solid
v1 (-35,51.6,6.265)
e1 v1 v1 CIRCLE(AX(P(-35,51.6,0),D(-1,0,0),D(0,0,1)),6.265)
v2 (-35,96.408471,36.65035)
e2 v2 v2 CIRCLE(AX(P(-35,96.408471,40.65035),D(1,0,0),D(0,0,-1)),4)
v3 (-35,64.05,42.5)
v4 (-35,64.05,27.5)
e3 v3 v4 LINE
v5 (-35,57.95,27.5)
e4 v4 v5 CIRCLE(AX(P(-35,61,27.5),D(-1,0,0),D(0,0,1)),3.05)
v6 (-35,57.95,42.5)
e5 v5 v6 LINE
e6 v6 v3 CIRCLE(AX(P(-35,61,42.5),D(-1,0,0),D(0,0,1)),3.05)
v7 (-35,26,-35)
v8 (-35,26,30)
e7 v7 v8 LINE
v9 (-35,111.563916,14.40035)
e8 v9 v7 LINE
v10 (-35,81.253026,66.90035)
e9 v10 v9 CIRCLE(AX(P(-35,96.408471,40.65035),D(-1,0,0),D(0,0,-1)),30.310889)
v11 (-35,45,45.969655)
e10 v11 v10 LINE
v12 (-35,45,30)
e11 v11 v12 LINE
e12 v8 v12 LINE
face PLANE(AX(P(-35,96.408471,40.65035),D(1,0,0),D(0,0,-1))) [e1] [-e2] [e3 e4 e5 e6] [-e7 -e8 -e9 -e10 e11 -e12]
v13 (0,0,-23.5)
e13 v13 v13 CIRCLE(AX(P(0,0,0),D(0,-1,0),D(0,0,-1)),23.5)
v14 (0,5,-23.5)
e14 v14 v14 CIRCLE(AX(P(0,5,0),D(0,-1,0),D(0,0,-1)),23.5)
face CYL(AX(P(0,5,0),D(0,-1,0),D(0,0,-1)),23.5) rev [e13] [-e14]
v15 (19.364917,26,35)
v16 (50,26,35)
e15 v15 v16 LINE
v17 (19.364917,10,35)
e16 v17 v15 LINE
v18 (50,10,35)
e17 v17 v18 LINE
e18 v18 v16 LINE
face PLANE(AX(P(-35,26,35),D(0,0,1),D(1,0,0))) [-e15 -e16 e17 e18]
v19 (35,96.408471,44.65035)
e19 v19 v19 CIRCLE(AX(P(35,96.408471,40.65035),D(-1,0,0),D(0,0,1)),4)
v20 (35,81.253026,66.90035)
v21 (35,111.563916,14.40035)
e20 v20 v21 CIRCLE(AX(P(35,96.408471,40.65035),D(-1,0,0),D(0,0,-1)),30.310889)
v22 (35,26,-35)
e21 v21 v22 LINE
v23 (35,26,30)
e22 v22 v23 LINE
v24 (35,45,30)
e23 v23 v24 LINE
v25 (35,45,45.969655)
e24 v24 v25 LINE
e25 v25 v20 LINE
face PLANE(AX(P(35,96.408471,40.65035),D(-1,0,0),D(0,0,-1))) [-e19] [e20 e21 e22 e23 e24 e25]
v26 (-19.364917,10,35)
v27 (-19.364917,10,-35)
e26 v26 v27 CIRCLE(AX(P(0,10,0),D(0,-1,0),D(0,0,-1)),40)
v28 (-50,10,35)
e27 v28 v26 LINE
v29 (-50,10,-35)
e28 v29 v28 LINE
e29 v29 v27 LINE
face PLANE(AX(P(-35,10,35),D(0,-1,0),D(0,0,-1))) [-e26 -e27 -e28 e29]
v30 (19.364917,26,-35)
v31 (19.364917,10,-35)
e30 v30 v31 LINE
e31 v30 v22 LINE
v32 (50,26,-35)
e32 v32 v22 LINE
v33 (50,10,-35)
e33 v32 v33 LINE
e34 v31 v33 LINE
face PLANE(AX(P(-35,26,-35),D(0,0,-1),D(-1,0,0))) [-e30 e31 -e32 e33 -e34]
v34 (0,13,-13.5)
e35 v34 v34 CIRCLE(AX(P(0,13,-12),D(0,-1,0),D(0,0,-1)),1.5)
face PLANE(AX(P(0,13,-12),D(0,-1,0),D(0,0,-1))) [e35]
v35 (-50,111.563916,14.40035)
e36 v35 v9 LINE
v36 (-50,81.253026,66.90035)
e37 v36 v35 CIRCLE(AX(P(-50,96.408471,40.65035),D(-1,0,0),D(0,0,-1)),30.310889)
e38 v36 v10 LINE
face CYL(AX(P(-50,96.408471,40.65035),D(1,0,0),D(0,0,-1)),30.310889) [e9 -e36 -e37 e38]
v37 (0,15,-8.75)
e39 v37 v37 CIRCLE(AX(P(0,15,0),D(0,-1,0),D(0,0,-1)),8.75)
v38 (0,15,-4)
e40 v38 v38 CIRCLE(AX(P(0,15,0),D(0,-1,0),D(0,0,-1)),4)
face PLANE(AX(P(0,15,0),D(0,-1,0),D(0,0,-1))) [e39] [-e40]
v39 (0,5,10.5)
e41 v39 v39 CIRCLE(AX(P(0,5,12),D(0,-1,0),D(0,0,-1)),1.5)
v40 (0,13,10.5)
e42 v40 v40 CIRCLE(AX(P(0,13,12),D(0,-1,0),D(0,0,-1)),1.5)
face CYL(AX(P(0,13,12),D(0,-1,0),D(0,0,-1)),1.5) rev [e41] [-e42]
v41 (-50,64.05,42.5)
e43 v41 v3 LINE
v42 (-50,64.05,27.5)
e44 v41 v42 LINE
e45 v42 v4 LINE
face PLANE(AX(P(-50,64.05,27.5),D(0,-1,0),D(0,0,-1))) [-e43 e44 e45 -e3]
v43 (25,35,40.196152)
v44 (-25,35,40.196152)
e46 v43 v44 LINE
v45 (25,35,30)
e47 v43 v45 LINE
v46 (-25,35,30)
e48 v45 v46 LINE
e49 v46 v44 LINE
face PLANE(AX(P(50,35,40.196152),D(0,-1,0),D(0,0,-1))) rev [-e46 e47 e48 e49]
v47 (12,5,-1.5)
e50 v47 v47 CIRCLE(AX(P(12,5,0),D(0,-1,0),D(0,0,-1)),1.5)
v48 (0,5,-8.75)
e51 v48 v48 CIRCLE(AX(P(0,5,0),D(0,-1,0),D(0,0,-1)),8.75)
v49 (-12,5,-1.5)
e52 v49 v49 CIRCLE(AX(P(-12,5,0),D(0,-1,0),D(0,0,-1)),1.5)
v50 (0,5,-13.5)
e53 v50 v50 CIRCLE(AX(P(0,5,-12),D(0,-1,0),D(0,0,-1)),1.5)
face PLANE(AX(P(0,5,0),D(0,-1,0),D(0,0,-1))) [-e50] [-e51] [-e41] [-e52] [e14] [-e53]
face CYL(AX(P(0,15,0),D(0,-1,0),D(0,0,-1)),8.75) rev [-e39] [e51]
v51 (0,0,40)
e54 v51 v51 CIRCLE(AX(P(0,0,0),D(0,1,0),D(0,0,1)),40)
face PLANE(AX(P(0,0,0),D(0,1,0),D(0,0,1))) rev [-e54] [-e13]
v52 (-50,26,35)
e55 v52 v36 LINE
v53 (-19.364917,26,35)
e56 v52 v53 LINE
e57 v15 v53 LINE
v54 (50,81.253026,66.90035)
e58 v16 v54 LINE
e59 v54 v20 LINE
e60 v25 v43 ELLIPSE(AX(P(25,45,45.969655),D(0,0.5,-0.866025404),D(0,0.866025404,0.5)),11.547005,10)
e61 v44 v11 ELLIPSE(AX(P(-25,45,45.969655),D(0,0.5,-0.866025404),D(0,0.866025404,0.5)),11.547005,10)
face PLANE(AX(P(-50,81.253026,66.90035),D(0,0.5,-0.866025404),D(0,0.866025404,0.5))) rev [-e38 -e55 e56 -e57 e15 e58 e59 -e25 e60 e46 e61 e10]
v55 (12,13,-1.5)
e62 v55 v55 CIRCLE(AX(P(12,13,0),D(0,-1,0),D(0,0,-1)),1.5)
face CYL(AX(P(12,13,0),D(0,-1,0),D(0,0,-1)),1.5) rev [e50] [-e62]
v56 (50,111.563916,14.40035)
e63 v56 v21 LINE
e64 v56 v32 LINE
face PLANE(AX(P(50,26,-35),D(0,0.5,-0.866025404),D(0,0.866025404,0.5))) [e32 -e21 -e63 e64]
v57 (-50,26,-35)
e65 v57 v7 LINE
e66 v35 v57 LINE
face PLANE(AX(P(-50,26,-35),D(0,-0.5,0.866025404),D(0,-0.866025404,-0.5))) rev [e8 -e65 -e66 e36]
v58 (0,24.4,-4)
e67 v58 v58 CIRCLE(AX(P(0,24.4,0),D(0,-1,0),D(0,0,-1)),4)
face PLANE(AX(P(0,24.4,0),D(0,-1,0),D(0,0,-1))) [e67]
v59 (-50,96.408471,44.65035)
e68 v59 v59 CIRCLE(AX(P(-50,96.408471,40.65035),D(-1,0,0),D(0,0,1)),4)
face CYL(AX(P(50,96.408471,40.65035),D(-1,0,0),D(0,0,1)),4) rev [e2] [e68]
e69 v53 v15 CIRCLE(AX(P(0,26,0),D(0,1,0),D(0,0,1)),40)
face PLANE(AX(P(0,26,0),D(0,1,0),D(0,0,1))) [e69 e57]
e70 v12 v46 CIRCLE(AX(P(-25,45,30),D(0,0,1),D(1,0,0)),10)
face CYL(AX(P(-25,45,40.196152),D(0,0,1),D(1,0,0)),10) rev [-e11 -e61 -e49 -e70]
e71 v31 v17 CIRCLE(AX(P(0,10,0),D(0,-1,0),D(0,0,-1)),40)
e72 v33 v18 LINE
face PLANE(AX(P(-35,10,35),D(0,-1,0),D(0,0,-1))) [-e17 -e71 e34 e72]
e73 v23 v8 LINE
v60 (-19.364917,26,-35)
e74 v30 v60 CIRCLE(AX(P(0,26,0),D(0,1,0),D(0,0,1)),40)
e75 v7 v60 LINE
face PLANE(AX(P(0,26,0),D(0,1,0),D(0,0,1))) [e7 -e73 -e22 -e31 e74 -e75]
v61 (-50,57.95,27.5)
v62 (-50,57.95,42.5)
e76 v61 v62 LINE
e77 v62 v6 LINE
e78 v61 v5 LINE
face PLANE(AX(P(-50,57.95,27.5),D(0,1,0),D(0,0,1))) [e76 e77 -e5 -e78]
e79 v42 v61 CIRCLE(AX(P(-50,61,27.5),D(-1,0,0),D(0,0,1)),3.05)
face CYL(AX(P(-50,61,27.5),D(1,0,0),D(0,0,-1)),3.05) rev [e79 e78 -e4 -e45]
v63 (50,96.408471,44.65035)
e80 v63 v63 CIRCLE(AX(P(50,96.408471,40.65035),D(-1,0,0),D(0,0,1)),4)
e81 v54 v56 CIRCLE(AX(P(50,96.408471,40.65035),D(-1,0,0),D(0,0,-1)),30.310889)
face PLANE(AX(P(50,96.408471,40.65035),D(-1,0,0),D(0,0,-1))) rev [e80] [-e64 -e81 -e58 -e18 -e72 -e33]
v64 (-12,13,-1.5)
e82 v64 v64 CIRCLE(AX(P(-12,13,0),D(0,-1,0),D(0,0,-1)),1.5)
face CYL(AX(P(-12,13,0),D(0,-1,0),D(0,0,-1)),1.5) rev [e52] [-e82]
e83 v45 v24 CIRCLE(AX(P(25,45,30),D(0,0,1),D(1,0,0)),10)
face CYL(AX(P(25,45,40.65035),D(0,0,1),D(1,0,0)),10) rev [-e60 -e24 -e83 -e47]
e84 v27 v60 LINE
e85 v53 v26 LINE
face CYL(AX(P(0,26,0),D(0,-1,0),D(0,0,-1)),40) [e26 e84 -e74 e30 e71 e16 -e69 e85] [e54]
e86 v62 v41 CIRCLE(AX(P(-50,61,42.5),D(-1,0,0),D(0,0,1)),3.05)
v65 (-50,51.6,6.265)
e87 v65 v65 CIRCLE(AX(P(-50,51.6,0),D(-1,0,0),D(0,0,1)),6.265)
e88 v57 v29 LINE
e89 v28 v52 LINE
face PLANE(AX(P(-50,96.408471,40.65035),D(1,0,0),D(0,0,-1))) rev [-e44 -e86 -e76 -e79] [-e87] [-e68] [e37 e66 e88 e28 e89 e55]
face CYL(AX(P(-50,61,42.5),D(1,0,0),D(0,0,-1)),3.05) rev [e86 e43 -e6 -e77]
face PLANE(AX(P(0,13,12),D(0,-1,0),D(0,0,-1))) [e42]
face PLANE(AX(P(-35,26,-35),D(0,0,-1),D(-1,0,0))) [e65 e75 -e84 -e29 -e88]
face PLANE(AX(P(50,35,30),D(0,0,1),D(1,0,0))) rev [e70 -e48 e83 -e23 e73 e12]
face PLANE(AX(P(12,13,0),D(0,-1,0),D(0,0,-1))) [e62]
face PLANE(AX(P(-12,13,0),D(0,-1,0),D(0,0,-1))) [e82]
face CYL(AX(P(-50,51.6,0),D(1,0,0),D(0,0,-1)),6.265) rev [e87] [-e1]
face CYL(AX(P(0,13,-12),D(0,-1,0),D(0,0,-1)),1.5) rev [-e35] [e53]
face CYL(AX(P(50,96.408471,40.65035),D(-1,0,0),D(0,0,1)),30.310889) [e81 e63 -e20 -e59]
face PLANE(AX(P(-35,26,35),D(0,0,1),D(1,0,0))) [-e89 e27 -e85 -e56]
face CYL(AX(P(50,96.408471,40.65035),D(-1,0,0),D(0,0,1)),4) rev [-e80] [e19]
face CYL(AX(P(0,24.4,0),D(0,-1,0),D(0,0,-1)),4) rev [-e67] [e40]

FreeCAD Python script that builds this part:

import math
import FreeCAD as App
import Part
import Sketcher
from FreeCAD import Vector
Q = App.Units.Quantity


def edges_at(feature, points):
    """Names of the edges that pass closest to the given points."""
    edges = feature.Shape.Edges
    near = lambda p: min(range(len(edges)), key=lambda i: edges[i].distToShape(Part.Vertex(*p))[0])
    return sorted({f"Edge{near(p) + 1}" for p in points})


def add_polygon(sketch, points):
    """Adds a closed chain of lines whose ends are joined by coincident constraints."""
    first, n = sketch.GeometryCount, len(points)
    for a, b in zip(points, points[1:] + points[:1]):
        sketch.addGeometry(Part.LineSegment(App.Vector(*a, 0), App.Vector(*b, 0)), False)
    for i in range(n):
        sketch.addConstraint(Sketcher.Constraint("Coincident", first + i, 2, first + (i + 1) % n, 1))

doc = App.newDocument("Part")
body = doc.addObject("PartDesign::Body", "Body")

# Sketch on XZ plane
sketch1 = body.newObject("Sketcher::SketchObject", "Sketch")
sketch1.AttachmentSupport = (doc.getObject("XZ_Plane"), [""])
sketch1.MapMode = "FlatFace"
sketch1.addGeometry(Part.Circle(Vector(0, 0, 0), Vector(0, 0, 1), 40), False)
sketch1.addConstraint([
    Sketcher.Constraint("Coincident", 0, 3, -1, 1),
    Sketcher.Constraint("Diameter", 0, Q("80 mm")),
])
pad1 = body.newObject("PartDesign::Pad", "Pad")
pad1.Profile = sketch1
pad1.Length = 26
pad1.Reversed = True

# Sketch on XZ plane
sketch2 = body.newObject("Sketcher::SketchObject", "Sketch001")
sketch2.AttachmentSupport = (doc.getObject("XZ_Plane"), [""])
sketch2.MapMode = "FlatFace"
sketch2.addGeometry(Part.Circle(Vector(0, 0, 0), Vector(0, 0, 1), 24), False)
sketch2.addConstraint([
    Sketcher.Constraint("Coincident", 0, 3, -1, 1),
    Sketcher.Constraint("Diameter", 0, Q("47 mm")),
])
pocket1 = body.newObject("PartDesign::Pocket", "Pocket")
pocket1.Profile = sketch2
pocket1.Length = 5

# Sketch on YZ plane
sketch3 = body.newObject("Sketcher::SketchObject", "Sketch002")
sketch3.AttachmentSupport = (doc.getObject("YZ_Plane"), [""])
sketch3.MapMode = "FlatFace"
add_polygon(sketch3, [(26, 35), (10, 35), (10, -35), (26, -35)])  # lines 0-3
sketch3.addConstraint([
    Sketcher.Constraint("Horizontal", 0),
    Sketcher.Constraint("Vertical", 1),
    Sketcher.Constraint("Horizontal", 2),
    Sketcher.Constraint("Vertical", 3),
    Sketcher.Constraint("DistanceX", 0, 2, 0, 1, Q("16 mm")),
    Sketcher.Constraint("DistanceY", 1, 2, 1, 1, Q("70 mm")),
    Sketcher.Constraint("DistanceX", -1, 1, 0, 2, Q("10 mm")),
    Sketcher.Constraint("DistanceY", -1, 1, 0, 2, Q("35 mm")),
])
pad2 = body.newObject("PartDesign::Pad", "Pad001")
pad2.Profile = sketch3
pad2.Type = "TwoLengths"
pad2.Length = 35
pad2.Length2 = 35

# Sketch on XZ plane
sketch4 = body.newObject("Sketcher::SketchObject", "Sketch003")
sketch4.AttachmentSupport = (doc.getObject("XZ_Plane"), [""])
sketch4.MapMode = "FlatFace"
sketch4.AttachmentOffset = App.Placement(Vector(0, 0, -5), App.Rotation())
sketch4.addGeometry(Part.Circle(Vector(0, 0, 0), Vector(0, 0, 1), 9), False)
sketch4.addConstraint([
    Sketcher.Constraint("Coincident", 0, 3, -1, 1),
    Sketcher.Constraint("Diameter", 0, Q("17.5 mm")),
])
pocket2 = body.newObject("PartDesign::Pocket", "Pocket001")
pocket2.Profile = sketch4
pocket2.Length = 10

# Sketch on XZ plane
sketch5 = body.newObject("Sketcher::SketchObject", "Sketch004")
sketch5.AttachmentSupport = (doc.getObject("XZ_Plane"), [""])
sketch5.MapMode = "FlatFace"
sketch5.AttachmentOffset = App.Placement(Vector(0, 0, -15), App.Rotation())
sketch5.addGeometry(Part.Circle(Vector(0, 0, 0), Vector(0, 0, 1), 4), False)
sketch5.addConstraint([
    Sketcher.Constraint("Coincident", 0, 3, -1, 1),
    Sketcher.Constraint("Diameter", 0, Q("8 mm")),
])
pocket3 = body.newObject("PartDesign::Pocket", "Pocket002")
pocket3.Profile = sketch5
pocket3.Length = 9.4

# Sketch on YZ plane
sketch6 = body.newObject("Sketcher::SketchObject", "Sketch005")
sketch6.AttachmentSupport = (doc.getObject("YZ_Plane"), [""])
sketch6.MapMode = "FlatFace"
sketch6.AttachmentOffset = App.Placement(Vector(0, 0, -35), App.Rotation())
sketch6.addGeometry([
    Part.LineSegment(Vector(26, -35, 0), Vector(10, -35, 0)),  # 0
    Part.LineSegment(Vector(10, -35, 0), Vector(10, 35, 0)),  # 1
    Part.LineSegment(Vector(10, 35, 0), Vector(26, 35, 0)),  # 2
    Part.LineSegment(Vector(26, 35, 0), Vector(81.3, 66.9, 0)),  # 3
    Part.ArcOfCircle(Part.Circle(Vector(96.4, 40.7, 0), Vector(0, 0, 1), 30.3), math.radians(-60), math.radians(120)),  # 4
    Part.LineSegment(Vector(111.6, 14.4, 0), Vector(26, -35, 0)),  # 5
    Part.Circle(Vector(51.6, 0, 0), Vector(0, 0, 1), 6.3),  # 6
    Part.LineSegment(Vector(64, 27.5, 0), Vector(64, 42.5, 0)),  # 7
    Part.ArcOfCircle(Part.Circle(Vector(61, 42.5, 0), Vector(0, 0, 1), 3), math.radians(0), math.radians(180)),  # 8
    Part.LineSegment(Vector(58, 42.5, 0), Vector(58, 27.5, 0)),  # 9
    Part.ArcOfCircle(Part.Circle(Vector(61, 27.5, 0), Vector(0, 0, 1), 3), math.radians(180), math.radians(360)),  # 10
], False)
sketch6.addConstraint([
    Sketcher.Constraint("Coincident", 0, 2, 1, 1),
    Sketcher.Constraint("Coincident", 1, 2, 2, 1),
    Sketcher.Constraint("Coincident", 2, 2, 3, 1),
    Sketcher.Constraint("Tangent", 3, 2, 4, 2),
    Sketcher.Constraint("Tangent", 4, 1, 5, 1),
    Sketcher.Constraint("Coincident", 5, 2, 0, 1),
    Sketcher.Constraint("Tangent", 7, 2, 8, 1),
    Sketcher.Constraint("Tangent", 8, 2, 9, 1),
    Sketcher.Constraint("Tangent", 9, 2, 10, 1),
    Sketcher.Constraint("Tangent", 10, 2, 7, 1),
    Sketcher.Constraint("Horizontal", 0),
    Sketcher.Constraint("Vertical", 1),
    Sketcher.Constraint("Horizontal", 2),
    Sketcher.Constraint("Vertical", 7),
    Sketcher.Constraint("Vertical", 9),
    Sketcher.Constraint("Symmetric", 2, 2, 5, 2, -1),
    Sketcher.Constraint("PointOnObject", 6, 3, -1),
    Sketcher.Constraint("Parallel", 3, 5),
    Sketcher.Constraint("Diameter", 6, Q("12.53 mm")),
    Sketcher.Constraint("DistanceX", 0, 2, 0, 1, Q("16 mm")),
    Sketcher.Constraint("DistanceY", 1, 1, 1, 2, Q("70 mm")),
    Sketcher.Constraint("DistanceY", 7, 1, 7, 2, Q("15 mm")),
    Sketcher.Constraint("Angle", 3, Q("30 deg")),
    Sketcher.Constraint("Radius", 8, Q("3.05 mm")),
    Sketcher.Constraint("DistanceX", -1, 1, 8, 3, Q("61 mm")),
    Sketcher.Constraint("DistanceX", -1, 1, 0, 2, Q("10 mm")),
    Sketcher.Constraint("DistanceX", -1, 1, 6, 3, Q("51.6 mm")),
    Sketcher.Constraint("DistanceY", -1, 1, 8, 3, Q("42.5 mm")),
    Sketcher.Constraint("Distance", 3, Q("63.800699 mm")),
])
pad3 = body.newObject("PartDesign::Pad", "Pad002")
pad3.Profile = sketch6
pad3.Length = 15
pad3.Reversed = True
doc.recompute()

mirrored = body.newObject("PartDesign::Mirrored", "Mirrored")
mirrored.Originals = [pad3]
mirrored.MirrorPlane = (doc.getObject("YZ_Plane"), [""])
body.Tip = mirrored

# Sketch on YZ plane
sketch7 = body.newObject("Sketcher::SketchObject", "Sketch006")
sketch7.AttachmentSupport = (doc.getObject("YZ_Plane"), [""])
sketch7.MapMode = "FlatFace"
sketch7.AttachmentOffset = App.Placement(Vector(0, 0, -50), App.Rotation())
sketch7.addGeometry(Part.Circle(Vector(96.4, 40.7, 0), Vector(0, 0, 1), 4), False)
sketch7.addConstraint([
    Sketcher.Constraint("Diameter", 0, Q("8 mm")),
    Sketcher.Constraint("DistanceX", -1, 1, 0, 3, Q("96.408471 mm")),
    Sketcher.Constraint("DistanceY", -1, 1, 0, 3, Q("40.65035 mm")),
])
pocket4 = body.newObject("PartDesign::Pocket", "Pocket003")
pocket4.Profile = sketch7
pocket4.Type = "ThroughAll"
pocket4.Reversed = True

# Sketch on YZ plane
sketch8 = body.newObject("Sketcher::SketchObject", "Sketch007")
sketch8.AttachmentSupport = (doc.getObject("YZ_Plane"), [""])
sketch8.MapMode = "FlatFace"
sketch8.AttachmentOffset = App.Placement(Vector(0, 0, -35), App.Rotation())
add_polygon(sketch8, [(35, 30), (35, 40), (26, 35), (26, 30)])  # lines 0-3
sketch8.addConstraint([
    Sketcher.Constraint("Vertical", 0),
    Sketcher.Constraint("Vertical", 2),
    Sketcher.Constraint("Horizontal", 3),
    Sketcher.Constraint("DistanceX", 3, 1, 3, 2, Q("9 mm")),
    Sketcher.Constraint("DistanceY", 2, 2, 2, 1, Q("5 mm")),
    Sketcher.Constraint("Angle", 1, Q("-150 deg")),
    Sketcher.Constraint("DistanceX", -1, 1, 0, 2, Q("35 mm")),
    Sketcher.Constraint("DistanceY", -1, 1, 1, 2, Q("35 mm")),
])
pad4 = body.newObject("PartDesign::Pad", "Pad003")
pad4.Profile = sketch8
pad4.Type = "UpToFirst"
doc.recompute()

fillet = body.newObject("PartDesign::Fillet", "Fillet")
fillet.Base = (pad4, edges_at(pad4, [(-35, 35, 35.098)]))
fillet.Radius = 10
doc.recompute()

fillet2 = body.newObject("PartDesign::Fillet", "Fillet001")
fillet2.Base = (fillet, edges_at(fillet, [(35, 35, 35.098)]))
fillet2.Radius = 10

# Sketch on XZ plane
sketch9 = body.newObject("Sketcher::SketchObject", "Sketch008")
sketch9.AttachmentSupport = (doc.getObject("XZ_Plane"), [""])
sketch9.MapMode = "FlatFace"
sketch9.AttachmentOffset = App.Placement(Vector(0, 0, -5), App.Rotation())
sketch9.addGeometry([
    Part.Circle(Vector(12, 0, 0), Vector(0, 0, 1), 1.5),
    Part.Circle(Vector(0, -12, 0), Vector(0, 0, 1), 1.5),
    Part.Circle(Vector(-12, 0, 0), Vector(0, 0, 1), 1.5),
    Part.Circle(Vector(0, 12, 0), Vector(0, 0, 1), 1.5),
], False)
sketch9.addConstraint([
    Sketcher.Constraint("Equal", 0, 1),
    Sketcher.Constraint("Equal", 1, 2),
    Sketcher.Constraint("Equal", 2, 3),
    Sketcher.Constraint("Symmetric", 0, 3, 2, 3, -1, 1),
    Sketcher.Constraint("Symmetric", 1, 3, 3, 3, -1, 1),
    Sketcher.Constraint("PointOnObject", 0, 3, -1),
    Sketcher.Constraint("PointOnObject", 1, 3, -2),
    Sketcher.Constraint("Diameter", 0, Q("3 mm")),
    Sketcher.Constraint("DistanceX", -1, 1, 0, 3, Q("12 mm")),
    Sketcher.Constraint("DistanceY", 1, 3, -1, 1, Q("12 mm")),
])
pocket5 = body.newObject("PartDesign::Pocket", "Pocket004")
pocket5.Profile = sketch9
pocket5.Length = 8

# Sketch on YZ plane
sketch10 = body.newObject("Sketcher::SketchObject", "Sketch009")
sketch10.AttachmentSupport = (doc.getObject("YZ_Plane"), [""])
sketch10.MapMode = "FlatFace"
sketch10.AttachmentOffset = App.Placement(Vector(0, 0, 35), App.Rotation())
sketch10.addGeometry(Part.Circle(Vector(52, 0, 0), Vector(0, 0, 1), 6), False)
sketch10.addConstraint([
    Sketcher.Constraint("PointOnObject", 0, 3, -1),
    Sketcher.Constraint("Diameter", 0, Q("12.53 mm")),
    Sketcher.Constraint("DistanceX", -1, 1, 0, 3, Q("51.6 mm")),
])
pad5 = body.newObject("PartDesign::Pad", "Pad004")
pad5.Profile = sketch10
pad5.Length = 15

# Sketch on YZ plane
sketch11 = body.newObject("Sketcher::SketchObject", "Sketch010")
sketch11.AttachmentSupport = (doc.getObject("YZ_Plane"), [""])
sketch11.MapMode = "FlatFace"
sketch11.AttachmentOffset = App.Placement(Vector(0, 0, 35), App.Rotation())
sketch11.addGeometry([
    Part.LineSegment(Vector(64, 42.5, 0), Vector(64, 27.5, 0)),
    Part.ArcOfCircle(Part.Circle(Vector(61, 27.5, 0), Vector(0, 0, 1), 3), math.radians(180), math.radians(360)),
    Part.LineSegment(Vector(58, 27.5, 0), Vector(58, 42.5, 0)),
    Part.ArcOfCircle(Part.Circle(Vector(61, 42.5, 0), Vector(0, 0, 1), 3), math.radians(0), math.radians(180)),
], False)
sketch11.addConstraint([
    Sketcher.Constraint("Tangent", 0, 2, 1, 2),
    Sketcher.Constraint("Tangent", 1, 1, 2, 1),
    Sketcher.Constraint("Tangent", 2, 2, 3, 2),
    Sketcher.Constraint("Tangent", 3, 1, 0, 1),
    Sketcher.Constraint("Vertical", 0),
    Sketcher.Constraint("Vertical", 2),
    Sketcher.Constraint("DistanceY", 0, 2, 0, 1, Q("15 mm")),
    Sketcher.Constraint("Radius", 1, Q("3.05 mm")),
    Sketcher.Constraint("DistanceX", -1, 1, 1, 3, Q("61 mm")),
    Sketcher.Constraint("DistanceY", -1, 1, 1, 3, Q("27.5 mm")),
])
pad6 = body.newObject("PartDesign::Pad", "Pad005")
pad6.Profile = sketch11
pad6.Length = 15

doc.recompute()
